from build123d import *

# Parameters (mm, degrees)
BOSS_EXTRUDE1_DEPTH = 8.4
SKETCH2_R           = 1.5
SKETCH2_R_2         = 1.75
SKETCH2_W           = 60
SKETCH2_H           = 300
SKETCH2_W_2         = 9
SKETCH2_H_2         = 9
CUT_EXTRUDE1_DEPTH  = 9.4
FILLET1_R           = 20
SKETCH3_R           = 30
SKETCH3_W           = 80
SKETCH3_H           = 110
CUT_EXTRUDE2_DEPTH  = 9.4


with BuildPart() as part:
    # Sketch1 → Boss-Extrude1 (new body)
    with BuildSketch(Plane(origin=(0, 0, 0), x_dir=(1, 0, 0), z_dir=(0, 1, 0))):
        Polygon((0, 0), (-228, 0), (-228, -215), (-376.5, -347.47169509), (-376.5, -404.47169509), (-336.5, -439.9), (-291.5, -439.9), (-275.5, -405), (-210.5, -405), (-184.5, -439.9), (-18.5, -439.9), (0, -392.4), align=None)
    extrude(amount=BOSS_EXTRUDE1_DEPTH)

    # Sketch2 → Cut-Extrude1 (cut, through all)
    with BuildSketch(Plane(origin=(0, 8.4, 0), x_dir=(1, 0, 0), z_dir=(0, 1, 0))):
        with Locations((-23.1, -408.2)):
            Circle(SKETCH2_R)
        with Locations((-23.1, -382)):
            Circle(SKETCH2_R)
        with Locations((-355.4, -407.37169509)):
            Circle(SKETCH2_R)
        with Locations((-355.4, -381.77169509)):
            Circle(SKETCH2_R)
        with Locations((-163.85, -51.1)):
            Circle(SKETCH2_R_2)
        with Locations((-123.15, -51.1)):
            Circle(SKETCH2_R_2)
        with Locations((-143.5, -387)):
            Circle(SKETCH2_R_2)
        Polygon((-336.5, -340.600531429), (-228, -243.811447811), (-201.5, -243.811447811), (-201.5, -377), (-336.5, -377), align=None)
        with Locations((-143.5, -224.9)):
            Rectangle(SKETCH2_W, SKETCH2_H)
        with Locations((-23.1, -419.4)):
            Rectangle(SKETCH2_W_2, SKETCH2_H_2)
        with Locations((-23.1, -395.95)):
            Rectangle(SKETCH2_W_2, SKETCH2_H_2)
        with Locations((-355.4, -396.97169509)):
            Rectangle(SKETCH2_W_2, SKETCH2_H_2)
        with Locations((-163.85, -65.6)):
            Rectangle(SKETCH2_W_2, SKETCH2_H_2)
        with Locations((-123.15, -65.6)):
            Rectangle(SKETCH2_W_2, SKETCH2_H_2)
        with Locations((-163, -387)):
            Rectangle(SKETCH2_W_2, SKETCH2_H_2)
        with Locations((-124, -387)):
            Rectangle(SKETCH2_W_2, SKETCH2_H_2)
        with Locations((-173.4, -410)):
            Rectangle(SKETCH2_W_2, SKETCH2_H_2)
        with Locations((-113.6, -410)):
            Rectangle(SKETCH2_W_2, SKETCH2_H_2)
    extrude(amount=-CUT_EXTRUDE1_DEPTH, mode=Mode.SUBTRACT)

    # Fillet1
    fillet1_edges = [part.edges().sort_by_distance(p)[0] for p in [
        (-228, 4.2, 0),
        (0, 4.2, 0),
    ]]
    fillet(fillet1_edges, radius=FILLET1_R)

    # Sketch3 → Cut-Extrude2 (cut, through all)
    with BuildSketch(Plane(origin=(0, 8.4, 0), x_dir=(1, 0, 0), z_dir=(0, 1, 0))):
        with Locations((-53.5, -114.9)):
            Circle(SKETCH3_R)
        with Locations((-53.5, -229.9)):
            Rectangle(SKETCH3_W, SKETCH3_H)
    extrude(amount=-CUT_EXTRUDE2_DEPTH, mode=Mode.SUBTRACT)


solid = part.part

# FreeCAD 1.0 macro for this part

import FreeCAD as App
import Part
import Sketcher
Q = App.Units.Quantity


def edges_at(feature, points):
    """Names of the edges that pass closest to the given points."""
    edges = feature.Shape.Edges
    near = lambda p: min(range(len(edges)), key=lambda i: edges[i].distToShape(Part.Vertex(*p))[0])
    return sorted({f"Edge{near(p) + 1}" for p in points})

doc = App.newDocument("Part")
body = doc.addObject("PartDesign::Body", "Body")

sketch1 = body.newObject("Sketcher::SketchObject", "Sketch")
sketch1.AttachmentSupport = (doc.getObject("XZ_Plane"), [""])
sketch1.MapMode = "FlatFace"
sketch1.addGeometry([
    Part.LineSegment(App.Vector(0, 0, 0), App.Vector(-228, 0, 0)),
    Part.LineSegment(App.Vector(-228, 0, 0), App.Vector(-228, 215, 0)),
    Part.LineSegment(App.Vector(-228, 215, 0), App.Vector(-376, 347, 0)),
    Part.LineSegment(App.Vector(-376, 347, 0), App.Vector(-376, 404, 0)),
    Part.LineSegment(App.Vector(-376, 404, 0), App.Vector(-336, 440, 0)),
    Part.LineSegment(App.Vector(-336, 440, 0), App.Vector(-292, 440, 0)),
    Part.LineSegment(App.Vector(-292, 440, 0), App.Vector(-276, 405, 0)),
    Part.LineSegment(App.Vector(-276, 405, 0), App.Vector(-210, 405, 0)),
    Part.LineSegment(App.Vector(-210, 405, 0), App.Vector(-184, 440, 0)),
    Part.LineSegment(App.Vector(-184, 440, 0), App.Vector(-18, 440, 0)),
    Part.LineSegment(App.Vector(-18, 440, 0), App.Vector(0, 392, 0)),
    Part.LineSegment(App.Vector(0, 392, 0), App.Vector(0, 0, 0)),
], False)
sketch1.addConstraint([
    Sketcher.Constraint("Coincident", 0, 2, 1, 1),
    Sketcher.Constraint("Coincident", 1, 2, 2, 1),
    Sketcher.Constraint("Coincident", 2, 2, 3, 1),
    Sketcher.Constraint("Coincident", 3, 2, 4, 1),
    Sketcher.Constraint("Coincident", 4, 2, 5, 1),
    Sketcher.Constraint("Coincident", 5, 2, 6, 1),
    Sketcher.Constraint("Coincident", 6, 2, 7, 1),
    Sketcher.Constraint("Coincident", 7, 2, 8, 1),
    Sketcher.Constraint("Coincident", 8, 2, 9, 1),
    Sketcher.Constraint("Coincident", 9, 2, 10, 1),
    Sketcher.Constraint("Coincident", 10, 2, 11, 1),
    Sketcher.Constraint("Coincident", 11, 2, 0, 1),
    Sketcher.Constraint("Horizontal", 0),
    Sketcher.Constraint("Vertical", 1),
    Sketcher.Constraint("Vertical", 3),
    Sketcher.Constraint("Horizontal", 5),
    Sketcher.Constraint("Horizontal", 7),
    Sketcher.Constraint("Horizontal", 9),
    Sketcher.Constraint("Vertical", 11),
    Sketcher.Constraint("Coincident", 11, 2, -1, 1),
    Sketcher.Constraint("Horizontal", 5, 2, 8, 2),
    Sketcher.Constraint("DistanceX", 0, 2, 0, 1, Q("228 mm")),
    Sketcher.Constraint("DistanceX", 5, 1, 5, 2, Q("45 mm")),
    Sketcher.Constraint("DistanceX", 7, 1, 7, 2, Q("65 mm")),
    Sketcher.Constraint("DistanceX", 9, 1, 9, 2, Q("166 mm")),
    Sketcher.Constraint("DistanceY", 1, 1, 1, 2, Q("215 mm")),
    Sketcher.Constraint("DistanceY", 3, 1, 3, 2, Q("57 mm")),
    Sketcher.Constraint("Distance", 2, Q("199 mm")),
    Sketcher.Constraint("DistanceY", 11, 2, 11, 1, Q("392.4 mm")),
    Sketcher.Constraint("DistanceY", -1, 1, 6, 2, Q("405 mm")),
    Sketcher.Constraint("DistanceX", 3, 2, 4, 2, Q("40 mm")),
    Sketcher.Constraint("DistanceX", 5, 2, 6, 2, Q("16 mm")),
    Sketcher.Constraint("DistanceX", 7, 2, 8, 2, Q("26 mm")),
    Sketcher.Constraint("DistanceX", 2, 2, -1, 1, Q("376.5 mm")),
    Sketcher.Constraint("DistanceY", -1, 1, 4, 2, Q("439.9 mm")),
])
pad1 = body.newObject("PartDesign::Pad", "Pad")
pad1.Profile = sketch1
pad1.Length = 8.4
pad1.Reversed = True

sketch2 = body.newObject("Sketcher::SketchObject", "Sketch001")
sketch2.AttachmentSupport = (doc.getObject("XZ_Plane"), [""])
sketch2.MapMode = "FlatFace"
sketch2.AttachmentOffset = App.Placement(App.Vector(0, 0, -8.4), App.Rotation())
sketch2.addGeometry([
    Part.Circle(App.Vector(-23.1, 408.2, 0), App.Vector(0, 0, 1), 1.5),
    Part.Circle(App.Vector(-23.1, 382, 0), App.Vector(0, 0, 1), 1.5),
    Part.Circle(App.Vector(-355.4, 407.4, 0), App.Vector(0, 0, 1), 1.5),
    Part.Circle(App.Vector(-355.4, 381.8, 0), App.Vector(0, 0, 1), 1.5),
    Part.Circle(App.Vector(-163.8, 51.1, 0), App.Vector(0, 0, 1), 1.8),
    Part.Circle(App.Vector(-123.2, 51.1, 0), App.Vector(0, 0, 1), 1.8),
    Part.Circle(App.Vector(-143.5, 387, 0), App.Vector(0, 0, 1), 1.8),
    Part.LineSegment(App.Vector(-228, 243.8, 0), App.Vector(-336.5, 340.6, 0)),
    Part.LineSegment(App.Vector(-336.5, 340.6, 0), App.Vector(-336.5, 377, 0)),
    Part.LineSegment(App.Vector(-336.5, 377, 0), App.Vector(-201.5, 377, 0)),
    Part.LineSegment(App.Vector(-201.5, 377, 0), App.Vector(-201.5, 243.8, 0)),
    Part.LineSegment(App.Vector(-201.5, 243.8, 0), App.Vector(-228, 243.8, 0)),
    Part.LineSegment(App.Vector(-173.5, 74.9, 0), App.Vector(-173.5, 374.9, 0)),
    Part.LineSegment(App.Vector(-173.5, 374.9, 0), App.Vector(-113.5, 374.9, 0)),
    Part.LineSegment(App.Vector(-113.5, 374.9, 0), App.Vector(-113.5, 74.9, 0)),
    Part.LineSegment(App.Vector(-113.5, 74.9, 0), App.Vector(-173.5, 74.9, 0)),
    Part.LineSegment(App.Vector(-27.6, 414.9, 0), App.Vector(-27.6, 423.9, 0)),
    Part.LineSegment(App.Vector(-27.6, 423.9, 0), App.Vector(-18.6, 423.9, 0)),
    Part.LineSegment(App.Vector(-18.6, 423.9, 0), App.Vector(-18.6, 414.9, 0)),
    Part.LineSegment(App.Vector(-18.6, 414.9, 0), App.Vector(-27.6, 414.9, 0)),
    Part.LineSegment(App.Vector(-27.6, 391.4, 0), App.Vector(-27.6, 400.4, 0)),
    Part.LineSegment(App.Vector(-27.6, 400.4, 0), App.Vector(-18.6, 400.4, 0)),
    Part.LineSegment(App.Vector(-18.6, 400.4, 0), App.Vector(-18.6, 391.4, 0)),
    Part.LineSegment(App.Vector(-18.6, 391.4, 0), App.Vector(-27.6, 391.4, 0)),
    Part.LineSegment(App.Vector(-359.9, 392.5, 0), App.Vector(-359.9, 401.5, 0)),
    Part.LineSegment(App.Vector(-359.9, 401.5, 0), App.Vector(-350.9, 401.5, 0)),
    Part.LineSegment(App.Vector(-350.9, 401.5, 0), App.Vector(-350.9, 392.5, 0)),
    Part.LineSegment(App.Vector(-350.9, 392.5, 0), App.Vector(-359.9, 392.5, 0)),
    Part.LineSegment(App.Vector(-168.3, 61.1, 0), App.Vector(-168.3, 70.1, 0)),
    Part.LineSegment(App.Vector(-168.3, 70.1, 0), App.Vector(-159.3, 70.1, 0)),
    Part.LineSegment(App.Vector(-159.3, 70.1, 0), App.Vector(-159.3, 61.1, 0)),
    Part.LineSegment(App.Vector(-159.3, 61.1, 0), App.Vector(-168.3, 61.1, 0)),
    Part.LineSegment(App.Vector(-127.7, 61.1, 0), App.Vector(-127.7, 70.1, 0)),
    Part.LineSegment(App.Vector(-127.7, 70.1, 0), App.Vector(-118.7, 70.1, 0)),
    Part.LineSegment(App.Vector(-118.7, 70.1, 0), App.Vector(-118.7, 61.1, 0)),
    Part.LineSegment(App.Vector(-118.7, 61.1, 0), App.Vector(-127.7, 61.1, 0)),
    Part.LineSegment(App.Vector(-167.5, 382.5, 0), App.Vector(-167.5, 391.5, 0)),
    Part.LineSegment(App.Vector(-167.5, 391.5, 0), App.Vector(-158.5, 391.5, 0)),
    Part.LineSegment(App.Vector(-158.5, 391.5, 0), App.Vector(-158.5, 382.5, 0)),
    Part.LineSegment(App.Vector(-158.5, 382.5, 0), App.Vector(-167.5, 382.5, 0)),
    Part.LineSegment(App.Vector(-128.5, 382.5, 0), App.Vector(-128.5, 391.5, 0)),
    Part.LineSegment(App.Vector(-128.5, 391.5, 0), App.Vector(-119.5, 391.5, 0)),
    Part.LineSegment(App.Vector(-119.5, 391.5, 0), App.Vector(-119.5, 382.5, 0)),
    Part.LineSegment(App.Vector(-119.5, 382.5, 0), App.Vector(-128.5, 382.5, 0)),
    Part.LineSegment(App.Vector(-177.9, 405.5, 0), App.Vector(-177.9, 414.5, 0)),
    Part.LineSegment(App.Vector(-177.9, 414.5, 0), App.Vector(-168.9, 414.5, 0)),
    Part.LineSegment(App.Vector(-168.9, 414.5, 0), App.Vector(-168.9, 405.5, 0)),
    Part.LineSegment(App.Vector(-168.9, 405.5, 0), App.Vector(-177.9, 405.5, 0)),
    Part.LineSegment(App.Vector(-118.1, 405.5, 0), App.Vector(-118.1, 414.5, 0)),
    Part.LineSegment(App.Vector(-118.1, 414.5, 0), App.Vector(-109.1, 414.5, 0)),
    Part.LineSegment(App.Vector(-109.1, 414.5, 0), App.Vector(-109.1, 405.5, 0)),
    Part.LineSegment(App.Vector(-109.1, 405.5, 0), App.Vector(-118.1, 405.5, 0)),
], False)
sketch2.addConstraint([
    Sketcher.Constraint("Coincident", 7, 2, 8, 1),
    Sketcher.Constraint("Coincident", 8, 2, 9, 1),
    Sketcher.Constraint("Coincident", 9, 2, 10, 1),
    Sketcher.Constraint("Coincident", 10, 2, 11, 1),
    Sketcher.Constraint("Coincident", 11, 2, 7, 1),
    Sketcher.Constraint("Coincident", 12, 2, 13, 1),
    Sketcher.Constraint("Coincident", 13, 2, 14, 1),
    Sketcher.Constraint("Coincident", 14, 2, 15, 1),
    Sketcher.Constraint("Coincident", 15, 2, 12, 1),
    Sketcher.Constraint("Coincident", 16, 2, 17, 1),
    Sketcher.Constraint("Coincident", 17, 2, 18, 1),
    Sketcher.Constraint("Coincident", 18, 2, 19, 1),
    Sketcher.Constraint("Coincident", 19, 2, 16, 1),
    Sketcher.Constraint("Coincident", 20, 2, 21, 1),
    Sketcher.Constraint("Coincident", 21, 2, 22, 1),
    Sketcher.Constraint("Coincident", 22, 2, 23, 1),
    Sketcher.Constraint("Coincident", 23, 2, 20, 1),
    Sketcher.Constraint("Coincident", 24, 2, 25, 1),
    Sketcher.Constraint("Coincident", 25, 2, 26, 1),
    Sketcher.Constraint("Coincident", 26, 2, 27, 1),
    Sketcher.Constraint("Coincident", 27, 2, 24, 1),
    Sketcher.Constraint("Coincident", 28, 2, 29, 1),
    Sketcher.Constraint("Coincident", 29, 2, 30, 1),
    Sketcher.Constraint("Coincident", 30, 2, 31, 1),
    Sketcher.Constraint("Coincident", 31, 2, 28, 1),
    Sketcher.Constraint("Coincident", 32, 2, 33, 1),
    Sketcher.Constraint("Coincident", 33, 2, 34, 1),
    Sketcher.Constraint("Coincident", 34, 2, 35, 1),
    Sketcher.Constraint("Coincident", 35, 2, 32, 1),
    Sketcher.Constraint("Coincident", 36, 2, 37, 1),
    Sketcher.Constraint("Coincident", 37, 2, 38, 1),
    Sketcher.Constraint("Coincident", 38, 2, 39, 1),
    Sketcher.Constraint("Coincident", 39, 2, 36, 1),
    Sketcher.Constraint("Coincident", 40, 2, 41, 1),
    Sketcher.Constraint("Coincident", 41, 2, 42, 1),
    Sketcher.Constraint("Coincident", 42, 2, 43, 1),
    Sketcher.Constraint("Coincident", 43, 2, 40, 1),
    Sketcher.Constraint("Coincident", 44, 2, 45, 1),
    Sketcher.Constraint("Coincident", 45, 2, 46, 1),
    Sketcher.Constraint("Coincident", 46, 2, 47, 1),
    Sketcher.Constraint("Coincident", 47, 2, 44, 1),
    Sketcher.Constraint("Coincident", 48, 2, 49, 1),
    Sketcher.Constraint("Coincident", 49, 2, 50, 1),
    Sketcher.Constraint("Coincident", 50, 2, 51, 1),
    Sketcher.Constraint("Coincident", 51, 2, 48, 1),
    Sketcher.Constraint("Vertical", 8),
    Sketcher.Constraint("Horizontal", 9),
    Sketcher.Constraint("Vertical", 10),
    Sketcher.Constraint("Horizontal", 11),
    Sketcher.Constraint("Vertical", 12),
    Sketcher.Constraint("Horizontal", 13),
    Sketcher.Constraint("Vertical", 14),
    Sketcher.Constraint("Horizontal", 15),
    Sketcher.Constraint("Vertical", 16),
    Sketcher.Constraint("Horizontal", 17),
    Sketcher.Constraint("Vertical", 18),
    Sketcher.Constraint("Horizontal", 19),
    Sketcher.Constraint("Vertical", 20),
    Sketcher.Constraint("Horizontal", 21),
    Sketcher.Constraint("Vertical", 22),
    Sketcher.Constraint("Horizontal", 23),
    Sketcher.Constraint("Vertical", 24),
    Sketcher.Constraint("Horizontal", 25),
    Sketcher.Constraint("Vertical", 26),
    Sketcher.Constraint("Horizontal", 27),
    Sketcher.Constraint("Vertical", 28),
    Sketcher.Constraint("Horizontal", 29),
    Sketcher.Constraint("Vertical", 30),
    Sketcher.Constraint("Horizontal", 31),
    Sketcher.Constraint("Vertical", 32),
    Sketcher.Constraint("Horizontal", 33),
    Sketcher.Constraint("Vertical", 34),
    Sketcher.Constraint("Horizontal", 35),
    Sketcher.Constraint("Vertical", 36),
    Sketcher.Constraint("Horizontal", 37),
    Sketcher.Constraint("Vertical", 38),
    Sketcher.Constraint("Horizontal", 39),
    Sketcher.Constraint("Vertical", 40),
    Sketcher.Constraint("Horizontal", 41),
    Sketcher.Constraint("Vertical", 42),
    Sketcher.Constraint("Horizontal", 43),
    Sketcher.Constraint("Vertical", 44),
    Sketcher.Constraint("Horizontal", 45),
    Sketcher.Constraint("Vertical", 46),
    Sketcher.Constraint("Horizontal", 47),
    Sketcher.Constraint("Vertical", 48),
    Sketcher.Constraint("Horizontal", 49),
    Sketcher.Constraint("Vertical", 50),
    Sketcher.Constraint("Horizontal", 51),
    Sketcher.Constraint("Equal", 0, 1),
    Sketcher.Constraint("Equal", 1, 2),
    Sketcher.Constraint("Equal", 2, 3),
    Sketcher.Constraint("Equal", 4, 5),
    Sketcher.Constraint("Equal", 5, 6),
    Sketcher.Constraint("Horizontal", 4, 3, 5, 3),
    Sketcher.Constraint("Horizontal", 29, 2, 32, 2),
    Sketcher.Constraint("Horizontal", 31, 2, 34, 2),
    Sketcher.Constraint("Horizontal", 37, 2, 40, 2),
    Sketcher.Constraint("Horizontal", 39, 2, 42, 2),
    Sketcher.Constraint("Horizontal", 45, 2, 48, 2),
    Sketcher.Constraint("Horizontal", 47, 2, 50, 2),
    Sketcher.Constraint("Vertical", 0, 3, 1, 3),
    Sketcher.Constraint("Vertical", 2, 3, 3, 3),
    Sketcher.Constraint("Vertical", 19, 2, 20, 2),
    Sketcher.Constraint("Vertical", 18, 2, 21, 2),
    Sketcher.Constraint("Equal", 23, 25),
    Sketcher.Constraint("Equal", 27, 29),
    Sketcher.Constraint("Equal", 31, 33),
    Sketcher.Constraint("Equal", 35, 37),
    Sketcher.Constraint("Equal", 39, 41),
    Sketcher.Constraint("Equal", 43, 45),
    Sketcher.Constraint("Equal", 47, 49),
    Sketcher.Constraint("Equal", 51, 16),
    Sketcher.Constraint("Equal", 18, 20),
    Sketcher.Constraint("Equal", 22, 24),
    Sketcher.Constraint("Equal", 26, 28),
    Sketcher.Constraint("Equal", 34, 36),
    Sketcher.Constraint("Equal", 42, 44),
    Sketcher.Constraint("Diameter", 0, Q("3 mm")),
    Sketcher.Constraint("Diameter", 4, Q("3.5 mm")),
    Sketcher.Constraint("DistanceX", 9, 1, 9, 2, Q("135 mm")),
    Sketcher.Constraint("DistanceX", 13, 1, 13, 2, Q("60 mm")),
    Sketcher.Constraint("DistanceX", 17, 1, 17, 2, Q("9 mm")),
    Sketcher.Constraint("DistanceY", 12, 1, 12, 2, Q("300 mm")),
    Sketcher.Constraint("DistanceX", 11, 2, 11, 1, Q("26.5 mm")),
    Sketcher.Constraint("DistanceY", -1, 1, 1, 3, Q("382 mm")),
    Sketcher.Constraint("DistanceY", -1, 1, 6, 3, Q("387 mm")),
    Sketcher.Constraint("DistanceY", -1, 1, 8, 2, Q("377 mm")),
    Sketcher.Constraint("DistanceX", 11, 2, -1, 1, Q("228 mm")),
    Sketcher.Constraint("DistanceX", 7, 2, 6, 3, Q("193 mm")),
    Sketcher.Constraint("DistanceX", 9, 2, 12, 2, Q("28 mm")),
    Sketcher.Constraint("DistanceY", 13, 2, 16, 2, Q("49 mm")),
    Sketcher.Constraint("DistanceY", 4, 3, 28, 2, Q("19 mm")),
    Sketcher.Constraint("DistanceX", 12, 2, 36, 2, Q("6 mm")),
    Sketcher.Constraint("DistanceX", 6, 3, 40, 2, Q("15 mm")),
    Sketcher.Constraint("DistanceY", 36, 2, 44, 2, Q("23 mm")),
    Sketcher.Constraint("DistanceX", 0, 3, -1, 1, Q("23.1 mm")),
    Sketcher.Constraint("DistanceY", -1, 1, 0, 3, Q("408.2 mm")),
    Sketcher.Constraint("DistanceX", 2, 3, -1, 1, Q("355.4 mm")),
    Sketcher.Constraint("DistanceY", -1, 1, 4, 3, Q("51.1 mm")),
    Sketcher.Constraint("DistanceY", -1, 1, 12, 2, Q("374.9 mm")),
    Sketcher.Constraint("DistanceX", 16, 2, -1, 1, Q("27.6 mm")),
    Sketcher.Constraint("DistanceX", 24, 2, -1, 1, Q("359.9 mm")),
    Sketcher.Constraint("DistanceY", -1, 1, 36, 2, Q("391.5 mm")),
    Sketcher.Constraint("DistanceX", 44, 2, -1, 1, Q("177.9 mm")),
    Sketcher.Constraint("DistanceX", 48, 2, -1, 1, Q("118.1 mm")),
    Sketcher.Constraint("DistanceY", 3, 3, 2, 3, Q("25.6 mm")),
    Sketcher.Constraint("DistanceX", 4, 3, 5, 3, Q("40.7 mm")),
    Sketcher.Constraint("DistanceY", 24, 2, 2, 3, Q("5.9 mm")),
    Sketcher.Constraint("DistanceX", 28, 2, 4, 3, Q("4.5 mm")),
    Sketcher.Constraint("DistanceX", 32, 2, 5, 3, Q("4.5 mm")),
    Sketcher.Constraint("DistanceX", 4, 3, -1, 1, Q("163.85 mm")),
    Sketcher.Constraint("DistanceY", -1, 1, 20, 2, Q("400.45 mm")),
    Sketcher.Constraint("DistanceY", 8, 1, 8, 2, Q("36.399469 mm")),
    Sketcher.Constraint("DistanceY", 10, 2, 10, 1, Q("133.188552 mm")),
    Sketcher.Constraint("DistanceY", -1, 1, 2, 3, Q("407.371695 mm")),
])
pocket1 = body.newObject("PartDesign::Pocket", "Pocket")
pocket1.Profile = sketch2
pocket1.Type = "ThroughAll"
pocket1.Reversed = True
doc.recompute()

fillet = body.newObject("PartDesign::Fillet", "Fillet")
fillet.Base = (pocket1, edges_at(pocket1, [(-228, 4.2, 0), (0, 4.2, 0)]))
fillet.Radius = 20

sketch3 = body.newObject("Sketcher::SketchObject", "Sketch002")
sketch3.AttachmentSupport = (doc.getObject("XZ_Plane"), [""])
sketch3.MapMode = "FlatFace"
sketch3.AttachmentOffset = App.Placement(App.Vector(0, 0, -8.4), App.Rotation())
sketch3.addGeometry([
    Part.Circle(App.Vector(-54, 115, 0), App.Vector(0, 0, 1), 30),
    Part.LineSegment(App.Vector(-94, 175, 0), App.Vector(-94, 285, 0)),
    Part.LineSegment(App.Vector(-94, 285, 0), App.Vector(-14, 285, 0)),
    Part.LineSegment(App.Vector(-14, 285, 0), App.Vector(-14, 175, 0)),
    Part.LineSegment(App.Vector(-14, 175, 0), App.Vector(-94, 175, 0)),
], False)
sketch3.addConstraint([
    Sketcher.Constraint("Coincident", 1, 2, 2, 1),
    Sketcher.Constraint("Coincident", 2, 2, 3, 1),
    Sketcher.Constraint("Coincident", 3, 2, 4, 1),
    Sketcher.Constraint("Coincident", 4, 2, 1, 1),
    Sketcher.Constraint("Vertical", 1),
    Sketcher.Constraint("Horizontal", 2),
    Sketcher.Constraint("Vertical", 3),
    Sketcher.Constraint("Horizontal", 4),
    Sketcher.Constraint("Diameter", 0, Q("60 mm")),
    Sketcher.Constraint("DistanceX", 2, 1, 2, 2, Q("80 mm")),
    Sketcher.Constraint("DistanceY", 1, 1, 1, 2, Q("110 mm")),
    Sketcher.Constraint("DistanceX", 1, 2, 0, 3, Q("40 mm")),
    Sketcher.Constraint("DistanceY", 0, 3, 1, 2, Q("170 mm")),
    Sketcher.Constraint("DistanceX", 0, 3, -1, 1, Q("53.5 mm")),
    Sketcher.Constraint("DistanceY", -1, 1, 0, 3, Q("114.9 mm")),
])
pocket2 = body.newObject("PartDesign::Pocket", "Pocket001")
pocket2.Profile = sketch3
pocket2.Type = "ThroughAll"
pocket2.Reversed = True

doc.recompute()
